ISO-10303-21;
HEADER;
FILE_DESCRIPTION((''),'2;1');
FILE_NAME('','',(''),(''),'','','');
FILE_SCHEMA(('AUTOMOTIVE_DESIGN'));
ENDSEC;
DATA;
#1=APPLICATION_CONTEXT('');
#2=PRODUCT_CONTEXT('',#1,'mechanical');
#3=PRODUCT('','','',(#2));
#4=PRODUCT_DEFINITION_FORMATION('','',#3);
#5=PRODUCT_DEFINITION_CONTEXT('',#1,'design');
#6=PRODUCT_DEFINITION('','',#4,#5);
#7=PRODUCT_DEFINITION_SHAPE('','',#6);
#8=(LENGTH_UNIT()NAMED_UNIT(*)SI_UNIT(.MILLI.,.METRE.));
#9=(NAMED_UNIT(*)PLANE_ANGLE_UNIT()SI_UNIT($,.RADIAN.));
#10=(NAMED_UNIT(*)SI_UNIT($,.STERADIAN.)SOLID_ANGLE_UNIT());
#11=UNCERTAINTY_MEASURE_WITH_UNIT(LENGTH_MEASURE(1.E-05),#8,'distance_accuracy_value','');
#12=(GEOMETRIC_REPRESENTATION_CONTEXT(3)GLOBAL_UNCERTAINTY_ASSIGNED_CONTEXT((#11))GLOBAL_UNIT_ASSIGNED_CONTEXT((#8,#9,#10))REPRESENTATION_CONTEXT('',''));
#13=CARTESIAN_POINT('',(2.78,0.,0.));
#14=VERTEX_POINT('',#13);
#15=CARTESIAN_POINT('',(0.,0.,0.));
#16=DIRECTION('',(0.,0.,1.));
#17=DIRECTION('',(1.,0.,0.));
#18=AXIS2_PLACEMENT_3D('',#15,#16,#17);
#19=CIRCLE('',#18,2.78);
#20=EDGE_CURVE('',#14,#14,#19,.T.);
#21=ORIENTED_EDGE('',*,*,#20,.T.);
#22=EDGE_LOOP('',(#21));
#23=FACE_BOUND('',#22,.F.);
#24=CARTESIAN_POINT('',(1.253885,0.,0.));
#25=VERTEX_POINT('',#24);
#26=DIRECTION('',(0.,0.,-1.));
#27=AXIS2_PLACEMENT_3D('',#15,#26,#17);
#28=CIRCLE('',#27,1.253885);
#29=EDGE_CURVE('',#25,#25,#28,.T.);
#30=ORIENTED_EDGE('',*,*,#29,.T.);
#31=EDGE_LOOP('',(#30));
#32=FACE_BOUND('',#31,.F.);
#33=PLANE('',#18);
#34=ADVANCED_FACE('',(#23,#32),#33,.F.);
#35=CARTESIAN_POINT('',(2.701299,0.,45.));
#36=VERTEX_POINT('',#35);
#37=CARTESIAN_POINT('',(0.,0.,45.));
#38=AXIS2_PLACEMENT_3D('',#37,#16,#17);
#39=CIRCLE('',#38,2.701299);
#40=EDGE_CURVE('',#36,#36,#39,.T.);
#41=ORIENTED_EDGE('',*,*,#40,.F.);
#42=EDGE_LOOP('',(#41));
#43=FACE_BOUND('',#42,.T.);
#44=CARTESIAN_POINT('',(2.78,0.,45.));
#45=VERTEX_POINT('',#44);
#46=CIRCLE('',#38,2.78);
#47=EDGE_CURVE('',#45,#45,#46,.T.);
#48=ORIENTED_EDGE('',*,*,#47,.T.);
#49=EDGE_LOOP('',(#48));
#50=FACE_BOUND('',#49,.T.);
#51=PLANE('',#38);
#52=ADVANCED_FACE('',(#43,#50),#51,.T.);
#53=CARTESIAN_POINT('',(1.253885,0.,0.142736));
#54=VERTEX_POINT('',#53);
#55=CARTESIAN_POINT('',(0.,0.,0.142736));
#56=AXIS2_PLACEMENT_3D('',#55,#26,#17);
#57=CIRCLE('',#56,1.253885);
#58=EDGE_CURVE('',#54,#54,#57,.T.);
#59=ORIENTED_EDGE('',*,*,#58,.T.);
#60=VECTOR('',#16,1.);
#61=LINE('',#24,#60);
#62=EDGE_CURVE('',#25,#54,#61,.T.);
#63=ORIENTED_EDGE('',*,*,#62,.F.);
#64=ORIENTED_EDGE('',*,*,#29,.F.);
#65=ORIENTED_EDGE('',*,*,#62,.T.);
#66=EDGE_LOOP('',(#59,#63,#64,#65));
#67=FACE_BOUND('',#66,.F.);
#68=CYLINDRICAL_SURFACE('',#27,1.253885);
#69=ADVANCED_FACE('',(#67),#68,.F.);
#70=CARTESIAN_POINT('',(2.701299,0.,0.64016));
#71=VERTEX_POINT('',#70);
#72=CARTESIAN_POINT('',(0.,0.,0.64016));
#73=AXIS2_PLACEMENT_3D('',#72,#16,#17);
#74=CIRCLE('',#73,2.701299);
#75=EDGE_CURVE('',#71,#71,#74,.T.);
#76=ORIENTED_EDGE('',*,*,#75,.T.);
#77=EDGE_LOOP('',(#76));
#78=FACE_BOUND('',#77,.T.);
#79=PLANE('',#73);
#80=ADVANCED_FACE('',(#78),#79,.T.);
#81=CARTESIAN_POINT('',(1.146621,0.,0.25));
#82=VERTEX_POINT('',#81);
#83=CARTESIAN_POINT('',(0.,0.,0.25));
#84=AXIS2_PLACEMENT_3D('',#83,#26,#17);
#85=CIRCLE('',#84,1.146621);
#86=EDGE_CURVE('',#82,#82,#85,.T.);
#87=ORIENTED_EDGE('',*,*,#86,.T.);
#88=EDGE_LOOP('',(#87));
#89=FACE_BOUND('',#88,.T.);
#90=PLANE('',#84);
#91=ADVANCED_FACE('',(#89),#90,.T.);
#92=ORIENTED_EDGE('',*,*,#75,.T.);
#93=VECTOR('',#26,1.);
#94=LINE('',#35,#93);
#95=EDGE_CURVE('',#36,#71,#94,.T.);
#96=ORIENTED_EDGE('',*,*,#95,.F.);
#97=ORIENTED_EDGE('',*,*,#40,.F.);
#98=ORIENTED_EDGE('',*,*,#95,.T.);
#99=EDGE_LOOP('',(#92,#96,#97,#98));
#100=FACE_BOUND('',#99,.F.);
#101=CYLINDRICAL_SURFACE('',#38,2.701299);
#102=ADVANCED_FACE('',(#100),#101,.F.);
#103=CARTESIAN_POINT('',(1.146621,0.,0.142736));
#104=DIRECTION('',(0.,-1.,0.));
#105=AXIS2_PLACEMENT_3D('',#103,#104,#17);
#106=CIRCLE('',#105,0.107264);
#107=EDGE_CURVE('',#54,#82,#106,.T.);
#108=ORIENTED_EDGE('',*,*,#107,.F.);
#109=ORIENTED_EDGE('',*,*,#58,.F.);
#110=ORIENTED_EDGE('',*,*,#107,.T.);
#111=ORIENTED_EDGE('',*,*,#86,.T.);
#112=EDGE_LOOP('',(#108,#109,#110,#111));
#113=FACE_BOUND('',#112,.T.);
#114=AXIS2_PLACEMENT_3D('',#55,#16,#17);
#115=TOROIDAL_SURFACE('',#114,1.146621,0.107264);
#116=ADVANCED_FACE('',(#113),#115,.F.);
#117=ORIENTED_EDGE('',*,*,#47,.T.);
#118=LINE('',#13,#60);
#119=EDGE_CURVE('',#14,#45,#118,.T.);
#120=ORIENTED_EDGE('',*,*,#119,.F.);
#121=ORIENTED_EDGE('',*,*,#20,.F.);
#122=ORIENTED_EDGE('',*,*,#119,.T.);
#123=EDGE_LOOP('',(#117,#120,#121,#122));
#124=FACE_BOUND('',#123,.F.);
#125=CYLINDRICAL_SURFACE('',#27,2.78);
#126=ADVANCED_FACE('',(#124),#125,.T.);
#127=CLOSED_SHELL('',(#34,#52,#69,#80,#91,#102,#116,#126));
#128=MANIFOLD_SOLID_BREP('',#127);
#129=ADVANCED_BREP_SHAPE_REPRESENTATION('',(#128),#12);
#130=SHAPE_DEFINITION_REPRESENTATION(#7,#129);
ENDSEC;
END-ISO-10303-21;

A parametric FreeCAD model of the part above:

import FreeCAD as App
import Part
import Sketcher

V = App.Vector


def edges_at(feature, points):
    """Names of the edges that pass closest to the given points."""
    edges = feature.Shape.Edges
    near = lambda p: min(range(len(edges)), key=lambda i: edges[i].distToShape(Part.Vertex(*p))[0])
    return sorted({f"Edge{near(p) + 1}" for p in points})

doc = App.newDocument("Part")
body = doc.addObject("PartDesign::Body", "Body")

sketch1 = body.newObject("Sketcher::SketchObject", "Sketch")
sketch1.AttachmentSupport = (doc.getObject("XY_Plane"), [""])
sketch1.MapMode = "FlatFace"
sketch1.addGeometry(Part.Circle(V(0, 0, 0), V(0, 0, 1), 2.8), False)
sketch1.addConstraint([
    Sketcher.Constraint("Coincident", 0, 3, -1, 1),
    Sketcher.Constraint("Diameter", 0, 5.56),
])
pad1 = body.newObject("PartDesign::Pad", "Pad")
pad1.Profile = sketch1
pad1.Length = 45

sketch2 = body.newObject("Sketcher::SketchObject", "Sketch001")
sketch2.AttachmentSupport = (doc.getObject("XY_Plane"), [""])
sketch2.MapMode = "FlatFace"
sketch2.AttachmentOffset = App.Placement(V(0, 0, 45), App.Rotation())
sketch2.addGeometry(Part.Circle(V(0, 0, 0), V(0, 0, 1), 2.7), False)
sketch2.addConstraint([
    Sketcher.Constraint("Coincident", 0, 3, -1, 1),
    Sketcher.Constraint("Diameter", 0, 5.402598),
])
pocket1 = body.newObject("PartDesign::Pocket", "Pocket")
pocket1.Profile = sketch2
pocket1.Length = 44.35984

sketch3 = body.newObject("Sketcher::SketchObject", "Sketch002")
sketch3.AttachmentSupport = (doc.getObject("XY_Plane"), [""])
sketch3.MapMode = "FlatFace"
sketch3.addGeometry(Part.Circle(V(0, 0, 0), V(0, 0, 1), 1.3), False)
sketch3.addConstraint([
    Sketcher.Constraint("Coincident", 0, 3, -1, 1),
    Sketcher.Constraint("Diameter", 0, 2.50777),
])
pocket2 = body.newObject("PartDesign::Pocket", "Pocket001")
pocket2.Profile = sketch3
pocket2.Length = 0.25
pocket2.Reversed = True
doc.recompute()

fillet = body.newObject("PartDesign::Fillet", "Fillet")
fillet.Base = (pocket2, edges_at(pocket2, [(-1.254, 0, 0.25)]))
fillet.Radius = 0.107264

doc.recompute()
